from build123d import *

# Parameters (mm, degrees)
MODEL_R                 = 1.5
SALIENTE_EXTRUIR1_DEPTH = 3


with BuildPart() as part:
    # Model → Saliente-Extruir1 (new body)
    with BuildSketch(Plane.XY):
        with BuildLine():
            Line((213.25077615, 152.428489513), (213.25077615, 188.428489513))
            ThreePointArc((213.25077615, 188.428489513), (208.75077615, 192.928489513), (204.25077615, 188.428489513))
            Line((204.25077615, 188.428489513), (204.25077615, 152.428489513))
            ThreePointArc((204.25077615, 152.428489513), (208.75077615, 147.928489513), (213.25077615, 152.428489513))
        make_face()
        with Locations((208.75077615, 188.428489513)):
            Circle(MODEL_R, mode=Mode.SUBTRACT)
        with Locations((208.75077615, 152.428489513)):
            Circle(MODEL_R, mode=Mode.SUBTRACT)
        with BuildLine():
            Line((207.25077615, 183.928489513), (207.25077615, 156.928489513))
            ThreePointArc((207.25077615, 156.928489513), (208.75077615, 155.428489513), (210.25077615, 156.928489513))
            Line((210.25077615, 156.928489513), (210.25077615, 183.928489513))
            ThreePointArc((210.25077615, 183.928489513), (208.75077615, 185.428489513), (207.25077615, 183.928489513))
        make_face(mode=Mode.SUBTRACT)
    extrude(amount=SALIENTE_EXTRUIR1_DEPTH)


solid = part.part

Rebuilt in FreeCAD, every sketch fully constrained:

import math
import FreeCAD as App
import Part
import Sketcher

V = App.Vector
Q = App.Units.Quantity

doc = App.newDocument("Part")
body = doc.addObject("PartDesign::Body", "Body")

# Sketch on XY plane
sketch1 = doc.addObject("Sketcher::SketchObject", "Sketch")
body.addObject(sketch1)
sketch1.AttachmentSupport = (doc.XY_Plane, [""])
sketch1.MapMode = "FlatFace"
sketch1.addGeometry([
    Part.LineSegment(V(213.250776, 152.42849, 0), V(213.250776, 188.42849, 0)),  # 0
    Part.ArcOfCircle(Part.Circle(V(208.750776, 188.42849, 0), V(0, 0, 1), 4.5), math.radians(0), math.radians(180)),  # 1
    Part.LineSegment(V(204.250776, 188.42849, 0), V(204.250776, 152.42849, 0)),  # 2
    Part.ArcOfCircle(Part.Circle(V(208.750776, 152.42849, 0), V(0, 0, 1), 4.5), math.radians(180), math.radians(360)),  # 3
    Part.Circle(V(208.750776, 152.42849, 0), V(0, 0, 1), 1.5),  # 4
    Part.LineSegment(V(207.250776, 156.92849, 0), V(207.250776, 183.92849, 0)),  # 5
    Part.ArcOfCircle(Part.Circle(V(208.750776, 183.92849, 0), V(0, 0, 1), 1.5), math.radians(0), math.radians(180)),  # 6
    Part.LineSegment(V(210.250776, 183.92849, 0), V(210.250776, 156.92849, 0)),  # 7
    Part.ArcOfCircle(Part.Circle(V(208.750776, 156.92849, 0), V(0, 0, 1), 1.5), math.radians(180), math.radians(360)),  # 8
    Part.Circle(V(208.750776, 188.42849, 0), V(0, 0, 1), 1.5),  # 9
], False)
sketch1.addConstraint([
    Sketcher.Constraint("Tangent", 0, 2, 1, 1),
    Sketcher.Constraint("Tangent", 1, 2, 2, 1),
    Sketcher.Constraint("Tangent", 2, 2, 3, 1),
    Sketcher.Constraint("Tangent", 3, 2, 0, 1),
    Sketcher.Constraint("Tangent", 5, 2, 6, 2),
    Sketcher.Constraint("Tangent", 6, 1, 7, 1),
    Sketcher.Constraint("Tangent", 7, 2, 8, 2),
    Sketcher.Constraint("Tangent", 8, 1, 5, 1),
    Sketcher.Constraint("Vertical", 0),
    Sketcher.Constraint("Vertical", 2),
    Sketcher.Constraint("Vertical", 5),
    Sketcher.Constraint("Vertical", 7),
    Sketcher.Constraint("Coincident", 4, 3, 3, 3),
    Sketcher.Constraint("Coincident", 9, 3, 1, 3),
    Sketcher.Constraint("Equal", 4, 6),
    Sketcher.Constraint("Equal", 8, 9),
    Sketcher.Constraint("Vertical", 4, 3, 6, 3),
    Sketcher.Constraint("Diameter", 4, Q("3 mm")),
    Sketcher.Constraint("Radius", 1, Q("4.5 mm")),
    Sketcher.Constraint("DistanceY", 0, 1, 0, 2, Q("36 mm")),
    Sketcher.Constraint("DistanceY", 5, 1, 5, 2, Q("27 mm")),
    Sketcher.Constraint("DistanceY", 6, 3, 1, 3, Q("4.5 mm")),
    Sketcher.Constraint("DistanceY", -1, 1, 1, 3, Q("188.42849 mm")),
    Sketcher.Constraint("DistanceX", -1, 1, 1, 3, Q("208.750776 mm")),
])
pad1 = doc.addObject("PartDesign::Pad", "Pad")
body.addObject(pad1)
pad1.Profile = sketch1
pad1.Length = 3

doc.recompute()
